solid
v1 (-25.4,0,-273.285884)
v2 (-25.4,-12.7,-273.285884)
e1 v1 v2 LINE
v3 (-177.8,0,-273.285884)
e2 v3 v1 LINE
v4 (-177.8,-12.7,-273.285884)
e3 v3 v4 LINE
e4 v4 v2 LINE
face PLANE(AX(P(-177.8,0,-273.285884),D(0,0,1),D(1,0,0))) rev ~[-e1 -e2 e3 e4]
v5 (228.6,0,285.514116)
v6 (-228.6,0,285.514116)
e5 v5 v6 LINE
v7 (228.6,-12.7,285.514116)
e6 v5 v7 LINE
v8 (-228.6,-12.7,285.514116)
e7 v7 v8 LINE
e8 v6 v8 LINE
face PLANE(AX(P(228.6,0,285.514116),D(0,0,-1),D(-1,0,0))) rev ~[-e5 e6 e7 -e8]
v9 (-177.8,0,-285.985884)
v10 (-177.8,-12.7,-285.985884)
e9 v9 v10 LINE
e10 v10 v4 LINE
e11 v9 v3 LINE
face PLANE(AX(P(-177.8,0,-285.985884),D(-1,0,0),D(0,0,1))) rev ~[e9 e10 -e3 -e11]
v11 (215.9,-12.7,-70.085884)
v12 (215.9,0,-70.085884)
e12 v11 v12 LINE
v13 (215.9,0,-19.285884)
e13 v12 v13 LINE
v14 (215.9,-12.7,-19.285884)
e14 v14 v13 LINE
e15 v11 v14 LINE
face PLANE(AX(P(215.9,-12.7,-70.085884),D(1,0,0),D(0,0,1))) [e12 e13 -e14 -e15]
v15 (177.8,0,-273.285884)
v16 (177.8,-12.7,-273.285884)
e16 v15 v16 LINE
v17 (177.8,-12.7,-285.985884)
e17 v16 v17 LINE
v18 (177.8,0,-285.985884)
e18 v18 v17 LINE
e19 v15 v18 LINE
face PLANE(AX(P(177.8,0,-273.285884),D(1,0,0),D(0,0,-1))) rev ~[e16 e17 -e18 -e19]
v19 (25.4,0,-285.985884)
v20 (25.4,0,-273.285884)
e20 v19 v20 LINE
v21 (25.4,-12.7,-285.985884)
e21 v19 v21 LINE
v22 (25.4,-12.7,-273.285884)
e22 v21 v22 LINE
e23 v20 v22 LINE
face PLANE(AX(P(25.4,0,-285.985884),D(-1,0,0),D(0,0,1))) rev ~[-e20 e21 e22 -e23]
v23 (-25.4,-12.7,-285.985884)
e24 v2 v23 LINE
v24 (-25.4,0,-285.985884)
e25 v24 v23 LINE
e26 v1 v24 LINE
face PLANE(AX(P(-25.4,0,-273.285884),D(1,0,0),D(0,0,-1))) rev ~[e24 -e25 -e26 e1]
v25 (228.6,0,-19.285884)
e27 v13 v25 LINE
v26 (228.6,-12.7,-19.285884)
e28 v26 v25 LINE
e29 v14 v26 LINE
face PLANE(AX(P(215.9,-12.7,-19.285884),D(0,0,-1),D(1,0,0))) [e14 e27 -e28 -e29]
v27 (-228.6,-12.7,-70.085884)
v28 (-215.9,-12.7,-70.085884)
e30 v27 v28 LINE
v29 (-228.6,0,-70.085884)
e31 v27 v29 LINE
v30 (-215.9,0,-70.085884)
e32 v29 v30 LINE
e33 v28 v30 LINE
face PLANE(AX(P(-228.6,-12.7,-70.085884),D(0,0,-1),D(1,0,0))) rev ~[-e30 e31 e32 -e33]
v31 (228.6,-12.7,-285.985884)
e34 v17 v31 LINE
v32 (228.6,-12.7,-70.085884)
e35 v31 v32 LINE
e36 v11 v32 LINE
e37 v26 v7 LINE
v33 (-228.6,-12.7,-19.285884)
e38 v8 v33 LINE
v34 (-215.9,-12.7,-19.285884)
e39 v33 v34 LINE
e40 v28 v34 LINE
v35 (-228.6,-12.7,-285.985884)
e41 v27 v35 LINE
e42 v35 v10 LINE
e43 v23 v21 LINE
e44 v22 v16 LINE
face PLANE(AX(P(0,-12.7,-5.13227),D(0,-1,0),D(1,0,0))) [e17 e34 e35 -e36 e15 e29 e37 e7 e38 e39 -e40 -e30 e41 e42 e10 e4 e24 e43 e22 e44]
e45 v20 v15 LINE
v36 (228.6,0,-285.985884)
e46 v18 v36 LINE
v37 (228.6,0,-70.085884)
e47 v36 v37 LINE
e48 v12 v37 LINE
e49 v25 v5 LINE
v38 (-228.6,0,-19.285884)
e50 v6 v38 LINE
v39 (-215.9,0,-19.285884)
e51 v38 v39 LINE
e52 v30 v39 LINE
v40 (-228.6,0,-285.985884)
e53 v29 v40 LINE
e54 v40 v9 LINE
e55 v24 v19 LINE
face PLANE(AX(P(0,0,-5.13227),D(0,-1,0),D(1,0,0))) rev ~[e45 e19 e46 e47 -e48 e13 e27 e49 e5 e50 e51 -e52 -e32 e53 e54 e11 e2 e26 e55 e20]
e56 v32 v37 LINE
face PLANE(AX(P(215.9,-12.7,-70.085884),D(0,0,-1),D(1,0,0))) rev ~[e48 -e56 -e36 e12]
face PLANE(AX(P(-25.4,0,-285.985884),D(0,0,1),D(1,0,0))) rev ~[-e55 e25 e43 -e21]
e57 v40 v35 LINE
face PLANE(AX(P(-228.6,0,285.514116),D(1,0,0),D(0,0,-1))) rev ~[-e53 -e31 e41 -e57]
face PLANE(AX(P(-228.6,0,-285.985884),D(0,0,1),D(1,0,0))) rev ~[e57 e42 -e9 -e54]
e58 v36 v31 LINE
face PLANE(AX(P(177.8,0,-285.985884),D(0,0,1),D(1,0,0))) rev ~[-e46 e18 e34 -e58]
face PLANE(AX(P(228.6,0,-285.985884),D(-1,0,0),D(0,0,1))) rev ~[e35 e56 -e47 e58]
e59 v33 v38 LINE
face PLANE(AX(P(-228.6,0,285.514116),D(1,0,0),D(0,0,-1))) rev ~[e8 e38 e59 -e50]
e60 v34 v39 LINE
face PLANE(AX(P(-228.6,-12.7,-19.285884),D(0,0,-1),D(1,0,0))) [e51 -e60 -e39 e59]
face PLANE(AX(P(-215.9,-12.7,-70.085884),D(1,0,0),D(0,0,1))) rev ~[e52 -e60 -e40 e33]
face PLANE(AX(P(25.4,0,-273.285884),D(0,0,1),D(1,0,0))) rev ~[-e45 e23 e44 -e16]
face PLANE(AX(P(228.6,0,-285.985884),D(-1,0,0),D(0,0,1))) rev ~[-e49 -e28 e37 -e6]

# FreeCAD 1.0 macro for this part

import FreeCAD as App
import Part
import Sketcher
Q = App.Units.Quantity

doc = App.newDocument("Part")
body = doc.addObject("PartDesign::Body", "Body")

sketch1 = doc.addObject("Sketcher::SketchObject", "Sketch")
body.addObject(sketch1)
sketch1.AttachmentSupport = (doc.XZ_Plane, [""])
sketch1.MapMode = "FlatFace"
sketch1.addGeometry(Part.LineSegment(App.Vector(25, -273, 0), App.Vector(178, -273, 0)), False)
sketch1.addGeometry(Part.LineSegment(App.Vector(178, -273, 0), App.Vector(178, -286, 0)), False)
sketch1.addGeometry(Part.LineSegment(App.Vector(178, -286, 0), App.Vector(229, -286, 0)), False)
sketch1.addGeometry(Part.LineSegment(App.Vector(229, -286, 0), App.Vector(229, 286, 0)), False)
sketch1.addGeometry(Part.LineSegment(App.Vector(229, 286, 0), App.Vector(-229, 286, 0)), False)
sketch1.addGeometry(Part.LineSegment(App.Vector(-229, 286, 0), App.Vector(-229, -286, 0)), False)
sketch1.addGeometry(Part.LineSegment(App.Vector(-229, -286, 0), App.Vector(-178, -286, 0)), False)
sketch1.addGeometry(Part.LineSegment(App.Vector(-178, -286, 0), App.Vector(-178, -273, 0)), False)
sketch1.addGeometry(Part.LineSegment(App.Vector(-178, -273, 0), App.Vector(-25, -273, 0)), False)
sketch1.addGeometry(Part.LineSegment(App.Vector(-25, -273, 0), App.Vector(-25, -286, 0)), False)
sketch1.addGeometry(Part.LineSegment(App.Vector(-25, -286, 0), App.Vector(25, -286, 0)), False)
sketch1.addGeometry(Part.LineSegment(App.Vector(25, -286, 0), App.Vector(25, -273, 0)), False)
sketch1.addConstraint(Sketcher.Constraint("Coincident", 0, 2, 1, 1))
sketch1.addConstraint(Sketcher.Constraint("Coincident", 1, 2, 2, 1))
sketch1.addConstraint(Sketcher.Constraint("Coincident", 2, 2, 3, 1))
sketch1.addConstraint(Sketcher.Constraint("Coincident", 3, 2, 4, 1))
sketch1.addConstraint(Sketcher.Constraint("Coincident", 4, 2, 5, 1))
sketch1.addConstraint(Sketcher.Constraint("Coincident", 5, 2, 6, 1))
sketch1.addConstraint(Sketcher.Constraint("Coincident", 6, 2, 7, 1))
sketch1.addConstraint(Sketcher.Constraint("Coincident", 7, 2, 8, 1))
sketch1.addConstraint(Sketcher.Constraint("Coincident", 8, 2, 9, 1))
sketch1.addConstraint(Sketcher.Constraint("Coincident", 9, 2, 10, 1))
sketch1.addConstraint(Sketcher.Constraint("Coincident", 10, 2, 11, 1))
sketch1.addConstraint(Sketcher.Constraint("Coincident", 11, 2, 0, 1))
sketch1.addConstraint(Sketcher.Constraint("Horizontal", 0))
sketch1.addConstraint(Sketcher.Constraint("Vertical", 1))
sketch1.addConstraint(Sketcher.Constraint("Horizontal", 2))
sketch1.addConstraint(Sketcher.Constraint("Vertical", 3))
sketch1.addConstraint(Sketcher.Constraint("Horizontal", 4))
sketch1.addConstraint(Sketcher.Constraint("Vertical", 5))
sketch1.addConstraint(Sketcher.Constraint("Horizontal", 6))
sketch1.addConstraint(Sketcher.Constraint("Vertical", 7))
sketch1.addConstraint(Sketcher.Constraint("Horizontal", 8))
sketch1.addConstraint(Sketcher.Constraint("Vertical", 9))
sketch1.addConstraint(Sketcher.Constraint("Horizontal", 10))
sketch1.addConstraint(Sketcher.Constraint("Vertical", 11))
sketch1.addConstraint(Sketcher.Constraint("Symmetric", 2, 2, 5, 2, -2))
sketch1.addConstraint(Sketcher.Constraint("Symmetric", 0, 2, 7, 2, -2))
sketch1.addConstraint(Sketcher.Constraint("Horizontal", 6, 2, 9, 2))
sketch1.addConstraint(Sketcher.Constraint("Equal", 0, 8))
sketch1.addConstraint(Sketcher.Constraint("Equal", 6, 10))
sketch1.addConstraint(Sketcher.Constraint("DistanceX", 0, 1, 0, 2, Q("6 in")))
sketch1.addConstraint(Sketcher.Constraint("DistanceX", 2, 1, 2, 2, Q("2 in")))
sketch1.addConstraint(Sketcher.Constraint("DistanceY", 1, 2, 1, 1, Q("0.5 in")))
sketch1.addConstraint(Sketcher.Constraint("DistanceY", 3, 1, 3, 2, Q("22.5 in")))
sketch1.addConstraint(Sketcher.Constraint("DistanceY", 0, 2, -1, 1, 273.285884))
pad1 = doc.addObject("PartDesign::Pad", "Pad")
body.addObject(pad1)
pad1.Profile = sketch1
pad1.Length = Q("0.5 in")

sketch2 = doc.addObject("Sketcher::SketchObject", "Sketch001")
body.addObject(sketch2)
sketch2.AttachmentSupport = (doc.XZ_Plane, [""])
sketch2.MapMode = "FlatFace"
sketch2.AttachmentOffset = App.Placement(App.Vector(0, 0, 0.5 * 25.4), App.Rotation())
sketch2.addGeometry(Part.LineSegment(App.Vector(-229, -19, 0), App.Vector(-229, -70, 0)), False)
sketch2.addGeometry(Part.LineSegment(App.Vector(-229, -70, 0), App.Vector(-216, -70, 0)), False)
sketch2.addGeometry(Part.LineSegment(App.Vector(-216, -70, 0), App.Vector(-216, -19, 0)), False)
sketch2.addGeometry(Part.LineSegment(App.Vector(-216, -19, 0), App.Vector(-229, -19, 0)), False)
sketch2.addGeometry(Part.LineSegment(App.Vector(216, -19, 0), App.Vector(216, -70, 0)), False)
sketch2.addGeometry(Part.LineSegment(App.Vector(216, -70, 0), App.Vector(229, -70, 0)), False)
sketch2.addGeometry(Part.LineSegment(App.Vector(229, -70, 0), App.Vector(229, -19, 0)), False)
sketch2.addGeometry(Part.LineSegment(App.Vector(229, -19, 0), App.Vector(216, -19, 0)), False)
sketch2.addConstraint(Sketcher.Constraint("Coincident", 0, 2, 1, 1))
sketch2.addConstraint(Sketcher.Constraint("Coincident", 1, 2, 2, 1))
sketch2.addConstraint(Sketcher.Constraint("Coincident", 2, 2, 3, 1))
sketch2.addConstraint(Sketcher.Constraint("Coincident", 3, 2, 0, 1))
sketch2.addConstraint(Sketcher.Constraint("Coincident", 4, 2, 5, 1))
sketch2.addConstraint(Sketcher.Constraint("Coincident", 5, 2, 6, 1))
sketch2.addConstraint(Sketcher.Constraint("Coincident", 6, 2, 7, 1))
sketch2.addConstraint(Sketcher.Constraint("Coincident", 7, 2, 4, 1))
sketch2.addConstraint(Sketcher.Constraint("Vertical", 0))
sketch2.addConstraint(Sketcher.Constraint("Horizontal", 1))
sketch2.addConstraint(Sketcher.Constraint("Vertical", 2))
sketch2.addConstraint(Sketcher.Constraint("Horizontal", 3))
sketch2.addConstraint(Sketcher.Constraint("Vertical", 4))
sketch2.addConstraint(Sketcher.Constraint("Horizontal", 5))
sketch2.addConstraint(Sketcher.Constraint("Vertical", 6))
sketch2.addConstraint(Sketcher.Constraint("Horizontal", 7))
sketch2.addConstraint(Sketcher.Constraint("Symmetric", 1, 2, 4, 2, -2))
sketch2.addConstraint(Sketcher.Constraint("Symmetric", 3, 2, 6, 2, -2))
sketch2.addConstraint(Sketcher.Constraint("DistanceY", 0, 2, 0, 1, Q("2 in")))
sketch2.addConstraint(Sketcher.Constraint("DistanceX", 1, 1, 1, 2, Q("0.5 in")))
sketch2.addConstraint(Sketcher.Constraint("DistanceX", 0, 2, -1, 1, Q("9 in")))
sketch2.addConstraint(Sketcher.Constraint("DistanceY", 0, 2, -1, 1, 70.085884))
pocket1 = doc.addObject("PartDesign::Pocket", "Pocket")
body.addObject(pocket1)
pocket1.Profile = sketch2
pocket1.Length = Q("1 in")

doc.recompute()
